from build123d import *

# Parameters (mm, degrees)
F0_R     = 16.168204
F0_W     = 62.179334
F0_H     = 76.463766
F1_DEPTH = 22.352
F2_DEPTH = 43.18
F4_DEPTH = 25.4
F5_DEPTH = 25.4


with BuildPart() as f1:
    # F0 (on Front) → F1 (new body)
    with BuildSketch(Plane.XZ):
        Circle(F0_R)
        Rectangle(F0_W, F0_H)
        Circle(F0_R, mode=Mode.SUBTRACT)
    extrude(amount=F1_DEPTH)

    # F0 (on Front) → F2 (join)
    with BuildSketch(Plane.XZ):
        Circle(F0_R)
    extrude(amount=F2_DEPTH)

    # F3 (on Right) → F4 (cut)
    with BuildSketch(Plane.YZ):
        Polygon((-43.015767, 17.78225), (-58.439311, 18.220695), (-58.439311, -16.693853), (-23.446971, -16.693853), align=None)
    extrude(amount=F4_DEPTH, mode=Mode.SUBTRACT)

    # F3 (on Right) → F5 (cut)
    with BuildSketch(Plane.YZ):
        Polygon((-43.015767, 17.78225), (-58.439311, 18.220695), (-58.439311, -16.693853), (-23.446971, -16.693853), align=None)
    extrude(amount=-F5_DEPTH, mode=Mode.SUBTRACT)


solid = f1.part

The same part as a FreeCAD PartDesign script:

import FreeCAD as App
import Part
import Sketcher
from FreeCAD import Vector
Q = App.Units.Quantity


def add_polygon(sketch, points):
    """Adds a closed chain of lines whose ends are joined by coincident constraints."""
    first, n = sketch.GeometryCount, len(points)
    for a, b in zip(points, points[1:] + points[:1]):
        sketch.addGeometry(Part.LineSegment(App.Vector(*a, 0), App.Vector(*b, 0)), False)
    for i in range(n):
        sketch.addConstraint(Sketcher.Constraint("Coincident", first + i, 2, first + (i + 1) % n, 1))

doc = App.newDocument("Part")
body = doc.addObject("PartDesign::Body", "Body")

# Sketch on XZ plane
sketch1 = doc.addObject("Sketcher::SketchObject", "Sketch")
body.addObject(sketch1)
sketch1.AttachmentSupport = (doc.XZ_Plane, [""])
sketch1.MapMode = "FlatFace"
add_polygon(sketch1, [(-31, 38), (-31, -38), (31, -38), (31, 38)])  # lines 0-3
sketch1.addGeometry(Part.Circle(Vector(0, 0, 0), Vector(0, 0, 1), 16), False)  # 4
sketch1.addConstraint([
    Sketcher.Constraint("Vertical", 0),
    Sketcher.Constraint("Horizontal", 1),
    Sketcher.Constraint("Vertical", 2),
    Sketcher.Constraint("Horizontal", 3),
    Sketcher.Constraint("Coincident", 4, 3, -1, 1),
    Sketcher.Constraint("Symmetric", 0, 2, 2, 2, -1, 1),
    Sketcher.Constraint("Diameter", 4, Q("32.336408 mm")),
    Sketcher.Constraint("DistanceX", 1, 1, 1, 2, Q("62.179334 mm")),
    Sketcher.Constraint("DistanceY", 0, 2, 0, 1, Q("76.463766 mm")),
])
pad1 = doc.addObject("PartDesign::Pad", "Pad")
body.addObject(pad1)
pad1.Profile = sketch1
pad1.Length = Q("0.88 in")

# Sketch on XZ plane
sketch2 = doc.addObject("Sketcher::SketchObject", "Sketch001")
body.addObject(sketch2)
sketch2.AttachmentSupport = (doc.XZ_Plane, [""])
sketch2.MapMode = "FlatFace"
sketch2.addGeometry(Part.Circle(Vector(0, 0, 0), Vector(0, 0, 1), 16), False)
sketch2.addConstraint([
    Sketcher.Constraint("Coincident", 0, 3, -1, 1),
    Sketcher.Constraint("Diameter", 0, Q("32.336408 mm")),
])
pad2 = doc.addObject("PartDesign::Pad", "Pad001")
body.addObject(pad2)
pad2.Profile = sketch2
pad2.Length = Q("1.7 in")

# Sketch on YZ plane
sketch3 = doc.addObject("Sketcher::SketchObject", "Sketch002")
body.addObject(sketch3)
sketch3.AttachmentSupport = (doc.YZ_Plane, [""])
sketch3.MapMode = "FlatFace"
add_polygon(sketch3, [(-43, 18), (-58, 18), (-58, -17), (-23, -17)])  # lines 0-3
sketch3.addConstraint([
    Sketcher.Constraint("Vertical", 1),
    Sketcher.Constraint("Horizontal", 2),
    Sketcher.Constraint("DistanceX", 2, 1, 2, 2, Q("34.99234 mm")),
    Sketcher.Constraint("DistanceY", 1, 2, 1, 1, Q("34.914548 mm")),
    Sketcher.Constraint("DistanceX", 0, 2, -1, 1, Q("58.439311 mm")),
    Sketcher.Constraint("DistanceY", -1, 1, 3, 2, Q("17.78225 mm")),
    Sketcher.Constraint("Distance", 0, Q("15.429775 mm")),
    Sketcher.Constraint("Distance", 3, Q("39.642647 mm")),
])
pocket1 = doc.addObject("PartDesign::Pocket", "Pocket")
body.addObject(pocket1)
pocket1.Profile = sketch3
pocket1.Length = Q("1 in")
pocket1.Reversed = True

# Sketch on YZ plane
sketch4 = doc.addObject("Sketcher::SketchObject", "Sketch003")
body.addObject(sketch4)
sketch4.AttachmentSupport = (doc.YZ_Plane, [""])
sketch4.MapMode = "FlatFace"
add_polygon(sketch4, [(-43, 18), (-58, 18), (-58, -17), (-23, -17)])  # lines 0-3
sketch4.addConstraint([
    Sketcher.Constraint("Vertical", 1),
    Sketcher.Constraint("Horizontal", 2),
    Sketcher.Constraint("DistanceX", 2, 1, 2, 2, Q("34.99234 mm")),
    Sketcher.Constraint("DistanceY", 1, 2, 1, 1, Q("34.914548 mm")),
    Sketcher.Constraint("DistanceX", 0, 2, -1, 1, Q("58.439311 mm")),
    Sketcher.Constraint("DistanceY", -1, 1, 3, 2, Q("17.78225 mm")),
    Sketcher.Constraint("Distance", 0, Q("15.429775 mm")),
    Sketcher.Constraint("Distance", 3, Q("39.642647 mm")),
])
pocket2 = doc.addObject("PartDesign::Pocket", "Pocket001")
body.addObject(pocket2)
pocket2.Profile = sketch4
pocket2.Length = Q("1 in")

doc.recompute()
